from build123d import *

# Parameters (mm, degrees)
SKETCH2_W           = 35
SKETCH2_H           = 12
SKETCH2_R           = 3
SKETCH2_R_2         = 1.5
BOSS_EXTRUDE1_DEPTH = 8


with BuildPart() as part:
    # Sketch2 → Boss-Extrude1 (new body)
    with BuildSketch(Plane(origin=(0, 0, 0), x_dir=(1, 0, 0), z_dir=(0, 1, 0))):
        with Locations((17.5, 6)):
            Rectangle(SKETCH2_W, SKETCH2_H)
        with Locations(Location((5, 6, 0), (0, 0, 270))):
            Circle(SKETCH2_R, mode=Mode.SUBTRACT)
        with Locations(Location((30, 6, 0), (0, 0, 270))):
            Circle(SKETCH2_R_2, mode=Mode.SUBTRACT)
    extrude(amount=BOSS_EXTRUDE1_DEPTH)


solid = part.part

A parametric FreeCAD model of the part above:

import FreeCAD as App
import Part
import Sketcher


def add_polygon(sketch, points):
    """Adds a closed chain of lines whose ends are joined by coincident constraints."""
    first, n = sketch.GeometryCount, len(points)
    for a, b in zip(points, points[1:] + points[:1]):
        sketch.addGeometry(Part.LineSegment(App.Vector(*a, 0), App.Vector(*b, 0)), False)
    for i in range(n):
        sketch.addConstraint(Sketcher.Constraint("Coincident", first + i, 2, first + (i + 1) % n, 1))

doc = App.newDocument("Part")
body = doc.addObject("PartDesign::Body", "Body")

# Sketch on XZ plane
sketch1 = body.newObject("Sketcher::SketchObject", "Sketch")
sketch1.AttachmentSupport = (doc.getObject("XZ_Plane"), [""])
sketch1.MapMode = "FlatFace"
add_polygon(sketch1, [(0, -12), (0, 0), (35, 0), (35, -12)])  # lines 0-3
sketch1.addGeometry(Part.Circle(App.Vector(5, -6, 0), App.Vector(0, 0, 1), 3), False)  # 4
sketch1.addGeometry(Part.Circle(App.Vector(30, -6, 0), App.Vector(0, 0, 1), 1.5), False)  # 5
sketch1.addConstraint([
    Sketcher.Constraint("Vertical", 0),
    Sketcher.Constraint("Horizontal", 1),
    Sketcher.Constraint("Vertical", 2),
    Sketcher.Constraint("Horizontal", 3),
    Sketcher.Constraint("Coincident", 0, 2, -1, 1),
    Sketcher.Constraint("Horizontal", 4, 3, 5, 3),
    Sketcher.Constraint("Diameter", 4, 6.0),
    Sketcher.Constraint("Diameter", 5, 3.0),
    Sketcher.Constraint("DistanceX", 1, 1, 1, 2, 35.0),
    Sketcher.Constraint("DistanceY", 0, 1, 0, 2, 12.0),
    Sketcher.Constraint("DistanceX", -1, 1, 4, 3, 5.0),
    Sketcher.Constraint("DistanceY", 4, 3, -1, 1, 6.0),
    Sketcher.Constraint("DistanceX", -1, 1, 5, 3, 30.0),
])
pad1 = body.newObject("PartDesign::Pad", "Pad")
pad1.Profile = sketch1
pad1.Length = 8
pad1.Reversed = True

doc.recompute()
